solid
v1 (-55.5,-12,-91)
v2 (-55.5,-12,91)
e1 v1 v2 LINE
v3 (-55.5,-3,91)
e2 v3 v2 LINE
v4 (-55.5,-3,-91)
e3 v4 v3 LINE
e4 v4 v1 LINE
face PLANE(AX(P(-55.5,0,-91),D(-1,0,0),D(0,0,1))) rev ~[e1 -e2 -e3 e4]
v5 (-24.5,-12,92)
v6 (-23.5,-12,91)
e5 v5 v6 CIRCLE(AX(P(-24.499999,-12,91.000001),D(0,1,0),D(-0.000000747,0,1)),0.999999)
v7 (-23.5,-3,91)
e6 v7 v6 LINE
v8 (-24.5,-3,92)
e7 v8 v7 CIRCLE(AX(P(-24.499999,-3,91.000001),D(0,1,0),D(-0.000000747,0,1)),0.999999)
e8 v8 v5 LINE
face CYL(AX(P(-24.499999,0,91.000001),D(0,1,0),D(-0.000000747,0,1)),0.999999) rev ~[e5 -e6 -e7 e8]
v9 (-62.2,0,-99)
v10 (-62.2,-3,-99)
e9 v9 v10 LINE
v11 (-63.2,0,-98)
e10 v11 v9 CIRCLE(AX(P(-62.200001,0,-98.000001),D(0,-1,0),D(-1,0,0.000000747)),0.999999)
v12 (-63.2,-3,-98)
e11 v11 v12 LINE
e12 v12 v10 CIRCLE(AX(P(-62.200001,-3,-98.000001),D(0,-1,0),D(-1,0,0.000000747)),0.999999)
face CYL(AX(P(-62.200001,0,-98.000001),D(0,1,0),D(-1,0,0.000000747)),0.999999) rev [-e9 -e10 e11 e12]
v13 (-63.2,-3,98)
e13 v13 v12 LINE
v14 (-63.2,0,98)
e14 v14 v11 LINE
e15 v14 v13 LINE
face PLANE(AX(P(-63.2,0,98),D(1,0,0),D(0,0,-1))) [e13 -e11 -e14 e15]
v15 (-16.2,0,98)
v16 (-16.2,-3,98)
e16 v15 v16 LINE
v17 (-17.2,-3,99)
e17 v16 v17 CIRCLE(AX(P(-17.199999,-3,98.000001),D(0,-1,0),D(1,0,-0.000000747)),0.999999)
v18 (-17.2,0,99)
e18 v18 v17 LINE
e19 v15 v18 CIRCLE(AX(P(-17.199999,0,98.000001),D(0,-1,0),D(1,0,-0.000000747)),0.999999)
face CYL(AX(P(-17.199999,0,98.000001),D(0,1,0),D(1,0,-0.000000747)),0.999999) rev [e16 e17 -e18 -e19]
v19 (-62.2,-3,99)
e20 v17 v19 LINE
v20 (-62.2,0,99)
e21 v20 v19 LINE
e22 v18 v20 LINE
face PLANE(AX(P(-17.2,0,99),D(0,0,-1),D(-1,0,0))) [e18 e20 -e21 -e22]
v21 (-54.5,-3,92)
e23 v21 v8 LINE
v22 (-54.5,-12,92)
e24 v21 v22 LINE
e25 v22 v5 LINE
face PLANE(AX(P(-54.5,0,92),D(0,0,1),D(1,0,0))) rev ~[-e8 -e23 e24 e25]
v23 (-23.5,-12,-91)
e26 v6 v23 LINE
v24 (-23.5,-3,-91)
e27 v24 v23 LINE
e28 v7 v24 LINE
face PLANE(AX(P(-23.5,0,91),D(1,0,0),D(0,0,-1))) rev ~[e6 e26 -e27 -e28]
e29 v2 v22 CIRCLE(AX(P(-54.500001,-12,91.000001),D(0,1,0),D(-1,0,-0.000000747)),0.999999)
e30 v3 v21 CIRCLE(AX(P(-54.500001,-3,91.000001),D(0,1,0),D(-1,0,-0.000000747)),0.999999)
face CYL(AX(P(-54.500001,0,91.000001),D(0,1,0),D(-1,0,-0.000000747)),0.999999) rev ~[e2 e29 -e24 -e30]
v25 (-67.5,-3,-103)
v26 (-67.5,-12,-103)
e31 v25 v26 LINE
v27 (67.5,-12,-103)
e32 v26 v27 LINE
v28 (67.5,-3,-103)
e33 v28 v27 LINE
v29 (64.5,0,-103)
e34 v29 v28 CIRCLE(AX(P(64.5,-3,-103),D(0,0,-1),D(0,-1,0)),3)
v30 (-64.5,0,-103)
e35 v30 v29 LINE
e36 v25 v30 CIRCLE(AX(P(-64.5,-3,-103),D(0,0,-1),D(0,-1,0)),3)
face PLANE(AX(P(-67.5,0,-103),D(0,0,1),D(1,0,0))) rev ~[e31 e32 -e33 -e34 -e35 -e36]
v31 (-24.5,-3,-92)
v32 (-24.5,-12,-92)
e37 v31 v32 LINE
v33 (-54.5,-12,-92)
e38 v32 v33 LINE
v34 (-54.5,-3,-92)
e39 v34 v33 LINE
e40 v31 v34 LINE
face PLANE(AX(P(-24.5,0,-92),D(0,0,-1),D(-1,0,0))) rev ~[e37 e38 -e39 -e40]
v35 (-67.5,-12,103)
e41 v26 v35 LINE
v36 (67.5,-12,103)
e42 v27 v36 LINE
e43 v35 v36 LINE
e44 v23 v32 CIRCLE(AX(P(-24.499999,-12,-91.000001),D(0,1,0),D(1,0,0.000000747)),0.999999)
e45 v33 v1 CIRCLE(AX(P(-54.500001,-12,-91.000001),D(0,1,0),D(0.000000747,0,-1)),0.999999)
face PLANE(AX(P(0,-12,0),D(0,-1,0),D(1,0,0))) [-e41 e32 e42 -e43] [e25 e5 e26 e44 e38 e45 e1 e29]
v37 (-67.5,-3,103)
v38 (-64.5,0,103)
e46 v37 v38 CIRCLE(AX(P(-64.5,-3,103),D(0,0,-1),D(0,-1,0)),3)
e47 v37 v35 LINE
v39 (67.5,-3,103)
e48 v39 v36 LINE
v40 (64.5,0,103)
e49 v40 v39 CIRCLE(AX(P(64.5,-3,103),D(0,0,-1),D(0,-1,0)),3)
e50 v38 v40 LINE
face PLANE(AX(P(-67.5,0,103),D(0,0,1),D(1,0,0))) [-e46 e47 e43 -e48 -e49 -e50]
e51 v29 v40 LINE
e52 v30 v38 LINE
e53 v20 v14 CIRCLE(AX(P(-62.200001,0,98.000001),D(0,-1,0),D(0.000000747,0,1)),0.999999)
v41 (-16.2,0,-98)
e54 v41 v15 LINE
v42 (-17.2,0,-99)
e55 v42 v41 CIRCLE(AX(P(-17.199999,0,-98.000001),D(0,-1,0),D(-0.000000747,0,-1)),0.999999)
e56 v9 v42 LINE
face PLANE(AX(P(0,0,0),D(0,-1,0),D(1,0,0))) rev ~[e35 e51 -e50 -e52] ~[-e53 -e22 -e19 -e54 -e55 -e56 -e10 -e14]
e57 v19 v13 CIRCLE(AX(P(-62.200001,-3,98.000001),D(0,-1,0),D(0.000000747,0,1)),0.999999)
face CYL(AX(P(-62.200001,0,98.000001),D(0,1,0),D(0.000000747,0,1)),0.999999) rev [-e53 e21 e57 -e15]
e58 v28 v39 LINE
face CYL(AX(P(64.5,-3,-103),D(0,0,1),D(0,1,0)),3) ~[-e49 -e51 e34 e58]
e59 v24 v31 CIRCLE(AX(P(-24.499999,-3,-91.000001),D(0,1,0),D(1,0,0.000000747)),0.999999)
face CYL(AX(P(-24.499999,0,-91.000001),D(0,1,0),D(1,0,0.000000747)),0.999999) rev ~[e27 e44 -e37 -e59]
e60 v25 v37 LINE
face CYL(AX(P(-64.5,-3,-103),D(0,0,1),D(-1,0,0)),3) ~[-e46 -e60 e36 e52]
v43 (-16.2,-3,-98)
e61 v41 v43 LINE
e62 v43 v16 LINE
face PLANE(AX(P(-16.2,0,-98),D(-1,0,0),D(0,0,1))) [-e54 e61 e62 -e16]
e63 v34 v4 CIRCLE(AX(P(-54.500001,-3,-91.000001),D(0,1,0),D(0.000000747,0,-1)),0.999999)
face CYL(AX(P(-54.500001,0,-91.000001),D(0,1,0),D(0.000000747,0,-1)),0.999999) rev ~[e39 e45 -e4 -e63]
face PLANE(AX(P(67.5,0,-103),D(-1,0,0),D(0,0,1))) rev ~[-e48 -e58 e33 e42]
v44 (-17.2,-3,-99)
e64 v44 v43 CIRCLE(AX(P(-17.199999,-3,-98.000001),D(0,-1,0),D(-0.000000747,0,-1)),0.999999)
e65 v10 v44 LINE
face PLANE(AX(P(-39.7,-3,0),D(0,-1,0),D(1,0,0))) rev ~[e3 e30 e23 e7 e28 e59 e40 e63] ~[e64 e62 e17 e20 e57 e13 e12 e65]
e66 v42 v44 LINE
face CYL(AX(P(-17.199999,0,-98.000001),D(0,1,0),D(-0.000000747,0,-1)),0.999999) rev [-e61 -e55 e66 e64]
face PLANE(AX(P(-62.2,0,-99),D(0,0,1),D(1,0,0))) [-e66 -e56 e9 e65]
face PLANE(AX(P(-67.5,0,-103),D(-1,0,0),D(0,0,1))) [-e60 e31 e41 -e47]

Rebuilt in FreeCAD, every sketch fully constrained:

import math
import FreeCAD as App
import Part
import Sketcher
from FreeCAD import Vector


def edges_at(feature, points):
    """Names of the edges that pass closest to the given points."""
    edges = feature.Shape.Edges
    near = lambda p: min(range(len(edges)), key=lambda i: edges[i].distToShape(Part.Vertex(*p))[0])
    return sorted({f"Edge{near(p) + 1}" for p in points})

doc = App.newDocument("Part")
body = doc.addObject("PartDesign::Body", "Body")

sketch1 = doc.addObject("Sketcher::SketchObject", "Sketch")
body.addObject(sketch1)
sketch1.AttachmentSupport = (doc.XZ_Plane, [""])
sketch1.MapMode = "FlatFace"
sketch1.addGeometry([
    Part.LineSegment(Vector(-67.5, 103, 0), Vector(-67.5, -103, 0)),
    Part.LineSegment(Vector(-67.5, -103, 0), Vector(67.5, -103, 0)),
    Part.LineSegment(Vector(67.5, -103, 0), Vector(67.5, 103, 0)),
    Part.LineSegment(Vector(67.5, 103, 0), Vector(-67.5, 103, 0)),
    Part.LineSegment(Vector(-55.5, -91, 0), Vector(-55.5, 91, 0)),
    Part.ArcOfCircle(Part.Circle(Vector(-54.500001, 91.000001, 0), Vector(0, 0, 1), 0.999999), math.radians(89.999957), math.radians(180.000043)),
    Part.LineSegment(Vector(-54.5, 92, 0), Vector(-24.5, 92, 0)),
    Part.ArcOfCircle(Part.Circle(Vector(-24.499999, 91.000001, 0), Vector(0, 0, 1), 0.999999), math.radians(-0.000043), math.radians(90.000043)),
    Part.LineSegment(Vector(-23.5, 91, 0), Vector(-23.5, -91, 0)),
    Part.ArcOfCircle(Part.Circle(Vector(-24.499999, -91.000001, 0), Vector(0, 0, 1), 0.999999), math.radians(-90.000043), math.radians(0.000043)),
    Part.LineSegment(Vector(-24.5, -92, 0), Vector(-54.5, -92, 0)),
    Part.ArcOfCircle(Part.Circle(Vector(-54.500001, -91.000001, 0), Vector(0, 0, 1), 0.999999), math.radians(179.999957), math.radians(270.000043)),
], False)
sketch1.addConstraint([
    Sketcher.Constraint("Coincident", 0, 2, 1, 1),
    Sketcher.Constraint("Coincident", 1, 2, 2, 1),
    Sketcher.Constraint("Coincident", 2, 2, 3, 1),
    Sketcher.Constraint("Coincident", 3, 2, 0, 1),
    Sketcher.Constraint("Tangent", 4, 2, 5, 2),
    Sketcher.Constraint("Tangent", 5, 1, 6, 1),
    Sketcher.Constraint("Tangent", 6, 2, 7, 2),
    Sketcher.Constraint("Tangent", 7, 1, 8, 1),
    Sketcher.Constraint("Tangent", 8, 2, 9, 2),
    Sketcher.Constraint("Tangent", 9, 1, 10, 1),
    Sketcher.Constraint("Tangent", 10, 2, 11, 2),
    Sketcher.Constraint("Tangent", 11, 1, 4, 1),
    Sketcher.Constraint("Vertical", 0),
    Sketcher.Constraint("Horizontal", 1),
    Sketcher.Constraint("Vertical", 2),
    Sketcher.Constraint("Horizontal", 3),
    Sketcher.Constraint("Vertical", 4),
    Sketcher.Constraint("Horizontal", 6),
    Sketcher.Constraint("Vertical", 8),
    Sketcher.Constraint("Horizontal", 10),
    Sketcher.Constraint("Equal", 5, 7),
    Sketcher.Constraint("Equal", 7, 9),
    Sketcher.Constraint("Equal", 9, 11),
    Sketcher.Constraint("Symmetric", 0, 2, 2, 2, -1, 1),
    Sketcher.Constraint("Radius", 5, 0.999999),
    Sketcher.Constraint("DistanceX", 1, 1, 1, 2, 135.0),
    Sketcher.Constraint("DistanceX", 6, 1, 6, 2, 30.0),
    Sketcher.Constraint("DistanceY", 0, 2, 0, 1, 206.0),
    Sketcher.Constraint("DistanceY", 4, 1, 4, 2, 182.0),
    Sketcher.Constraint("DistanceY", -1, 1, 5, 3, 91.000001),
    Sketcher.Constraint("DistanceX", 0, 2, 11, 3, 12.999999),
])
pad1 = doc.addObject("PartDesign::Pad", "Pad")
body.addObject(pad1)
pad1.Profile = sketch1
pad1.Length = 12

sketch2 = doc.addObject("Sketcher::SketchObject", "Sketch001")
body.addObject(sketch2)
sketch2.AttachmentSupport = (doc.XZ_Plane, [""])
sketch2.MapMode = "FlatFace"
sketch2.addGeometry([
    Part.LineSegment(Vector(-16.2, -98, 0), Vector(-16.2, 98, 0)),
    Part.ArcOfCircle(Part.Circle(Vector(-17.199999, 98.000001, 0), Vector(0, 0, 1), 0.999999), math.radians(-0.000043), math.radians(90.000043)),
    Part.LineSegment(Vector(-17.2, 99, 0), Vector(-62.2, 99, 0)),
    Part.ArcOfCircle(Part.Circle(Vector(-62.200001, 98.000001, 0), Vector(0, 0, 1), 0.999999), math.radians(89.999957), math.radians(180.000043)),
    Part.LineSegment(Vector(-63.2, 98, 0), Vector(-63.2, -98, 0)),
    Part.ArcOfCircle(Part.Circle(Vector(-62.200001, -98.000001, 0), Vector(0, 0, 1), 0.999999), math.radians(179.999957), math.radians(270.000043)),
    Part.LineSegment(Vector(-62.2, -99, 0), Vector(-17.2, -99, 0)),
    Part.ArcOfCircle(Part.Circle(Vector(-17.199999, -98.000001, 0), Vector(0, 0, 1), 0.999999), math.radians(-90.000043), math.radians(0.000043)),
    Part.LineSegment(Vector(-55.5, -91, 0), Vector(-55.5, 91, 0)),
    Part.ArcOfCircle(Part.Circle(Vector(-54.500001, 91.000001, 0), Vector(0, 0, 1), 0.999999), math.radians(89.999957), math.radians(180.000043)),
    Part.LineSegment(Vector(-54.5, 92, 0), Vector(-24.5, 92, 0)),
    Part.ArcOfCircle(Part.Circle(Vector(-24.499999, 91.000001, 0), Vector(0, 0, 1), 0.999999), math.radians(-0.000043), math.radians(90.000043)),
    Part.LineSegment(Vector(-23.5, 91, 0), Vector(-23.5, -91, 0)),
    Part.ArcOfCircle(Part.Circle(Vector(-24.499999, -91.000001, 0), Vector(0, 0, 1), 0.999999), math.radians(-90.000043), math.radians(0.000043)),
    Part.LineSegment(Vector(-24.5, -92, 0), Vector(-54.5, -92, 0)),
    Part.ArcOfCircle(Part.Circle(Vector(-54.500001, -91.000001, 0), Vector(0, 0, 1), 0.999999), math.radians(179.999957), math.radians(270.000043)),
], False)
sketch2.addConstraint([
    Sketcher.Constraint("Tangent", 0, 2, 1, 1),
    Sketcher.Constraint("Tangent", 1, 2, 2, 1),
    Sketcher.Constraint("Tangent", 2, 2, 3, 1),
    Sketcher.Constraint("Tangent", 3, 2, 4, 1),
    Sketcher.Constraint("Tangent", 4, 2, 5, 1),
    Sketcher.Constraint("Tangent", 5, 2, 6, 1),
    Sketcher.Constraint("Tangent", 6, 2, 7, 1),
    Sketcher.Constraint("Tangent", 7, 2, 0, 1),
    Sketcher.Constraint("Tangent", 8, 2, 9, 2),
    Sketcher.Constraint("Tangent", 9, 1, 10, 1),
    Sketcher.Constraint("Tangent", 10, 2, 11, 2),
    Sketcher.Constraint("Tangent", 11, 1, 12, 1),
    Sketcher.Constraint("Tangent", 12, 2, 13, 2),
    Sketcher.Constraint("Tangent", 13, 1, 14, 1),
    Sketcher.Constraint("Tangent", 14, 2, 15, 2),
    Sketcher.Constraint("Tangent", 15, 1, 8, 1),
    Sketcher.Constraint("Vertical", 0),
    Sketcher.Constraint("Horizontal", 2),
    Sketcher.Constraint("Vertical", 4),
    Sketcher.Constraint("Horizontal", 6),
    Sketcher.Constraint("Vertical", 8),
    Sketcher.Constraint("Horizontal", 10),
    Sketcher.Constraint("Vertical", 12),
    Sketcher.Constraint("Horizontal", 14),
    Sketcher.Constraint("Equal", 1, 3),
    Sketcher.Constraint("Equal", 3, 5),
    Sketcher.Constraint("Equal", 5, 7),
    Sketcher.Constraint("Equal", 7, 9),
    Sketcher.Constraint("Equal", 9, 11),
    Sketcher.Constraint("Equal", 11, 13),
    Sketcher.Constraint("Equal", 13, 15),
    Sketcher.Constraint("Radius", 1, 0.999999),
    Sketcher.Constraint("DistanceX", 2, 2, 2, 1, 45.0),
    Sketcher.Constraint("DistanceX", 10, 1, 10, 2, 30.0),
    Sketcher.Constraint("DistanceY", 0, 1, 0, 2, 196.0),
    Sketcher.Constraint("DistanceY", 8, 1, 8, 2, 182.0),
    Sketcher.Constraint("DistanceY", -1, 1, 1, 3, 98.000001),
    Sketcher.Constraint("DistanceY", -1, 1, 9, 3, 91.000001),
    Sketcher.Constraint("DistanceX", 1, 3, -1, 1, 17.199999),
    Sketcher.Constraint("DistanceX", 9, 3, -1, 1, 54.500001),
])
pocket1 = doc.addObject("PartDesign::Pocket", "Pocket")
body.addObject(pocket1)
pocket1.Profile = sketch2
pocket1.Length = 3
pocket1.Reversed = True
doc.recompute()

fillet = doc.addObject("PartDesign::Fillet", "Fillet")
body.addObject(fillet)
fillet.Base = (pocket1, edges_at(pocket1, [(67.5, 0, 0), (-67.5, 0, 0)]))
fillet.Radius = 3

doc.recompute()
